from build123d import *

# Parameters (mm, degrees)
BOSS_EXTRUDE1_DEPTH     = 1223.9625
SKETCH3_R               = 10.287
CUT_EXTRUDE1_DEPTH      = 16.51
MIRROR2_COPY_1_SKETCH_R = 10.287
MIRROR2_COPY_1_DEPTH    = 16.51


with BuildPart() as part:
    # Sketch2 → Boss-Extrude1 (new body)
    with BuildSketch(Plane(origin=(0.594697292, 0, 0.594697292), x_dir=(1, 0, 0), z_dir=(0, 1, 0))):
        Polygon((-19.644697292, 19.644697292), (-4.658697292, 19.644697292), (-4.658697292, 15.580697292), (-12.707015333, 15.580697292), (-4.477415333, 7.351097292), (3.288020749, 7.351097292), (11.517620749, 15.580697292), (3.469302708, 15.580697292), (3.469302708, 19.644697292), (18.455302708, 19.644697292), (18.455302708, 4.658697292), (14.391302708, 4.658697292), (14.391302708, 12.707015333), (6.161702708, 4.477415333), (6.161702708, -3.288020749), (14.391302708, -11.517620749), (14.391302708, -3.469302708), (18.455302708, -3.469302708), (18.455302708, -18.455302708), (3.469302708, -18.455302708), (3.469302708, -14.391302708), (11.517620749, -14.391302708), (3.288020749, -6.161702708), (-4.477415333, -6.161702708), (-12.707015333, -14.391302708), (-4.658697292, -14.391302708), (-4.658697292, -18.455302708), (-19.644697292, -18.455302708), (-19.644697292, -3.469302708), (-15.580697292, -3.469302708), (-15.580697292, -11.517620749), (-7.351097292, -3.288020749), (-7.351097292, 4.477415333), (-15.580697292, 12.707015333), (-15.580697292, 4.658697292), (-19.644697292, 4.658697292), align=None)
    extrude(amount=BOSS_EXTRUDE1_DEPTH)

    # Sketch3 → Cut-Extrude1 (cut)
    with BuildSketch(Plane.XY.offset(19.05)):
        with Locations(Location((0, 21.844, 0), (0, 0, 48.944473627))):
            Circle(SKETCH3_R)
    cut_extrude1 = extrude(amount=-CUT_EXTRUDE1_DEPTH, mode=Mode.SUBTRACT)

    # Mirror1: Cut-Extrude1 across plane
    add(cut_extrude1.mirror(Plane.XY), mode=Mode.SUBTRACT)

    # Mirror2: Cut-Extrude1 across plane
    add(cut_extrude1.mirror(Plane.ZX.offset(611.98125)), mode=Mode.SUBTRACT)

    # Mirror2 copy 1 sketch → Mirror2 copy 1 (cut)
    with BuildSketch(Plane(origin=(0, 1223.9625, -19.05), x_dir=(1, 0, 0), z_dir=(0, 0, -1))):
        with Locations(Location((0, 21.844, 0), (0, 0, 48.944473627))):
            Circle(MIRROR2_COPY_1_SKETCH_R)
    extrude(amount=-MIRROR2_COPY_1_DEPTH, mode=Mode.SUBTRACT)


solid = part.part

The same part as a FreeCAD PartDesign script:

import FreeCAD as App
import Part
import Sketcher
from FreeCAD import Vector
Q = App.Units.Quantity


def add_polygon(sketch, points):
    """Adds a closed chain of lines whose ends are joined by coincident constraints."""
    first, n = sketch.GeometryCount, len(points)
    for a, b in zip(points, points[1:] + points[:1]):
        sketch.addGeometry(Part.LineSegment(App.Vector(*a, 0), App.Vector(*b, 0)), False)
    for i in range(n):
        sketch.addConstraint(Sketcher.Constraint("Coincident", first + i, 2, first + (i + 1) % n, 1))

doc = App.newDocument("Part")
body = doc.addObject("PartDesign::Body", "Body")

# Sketch on XZ plane
sketch1 = body.newObject("Sketcher::SketchObject", "Sketch")
sketch1.AttachmentSupport = (doc.getObject("XZ_Plane"), [""])
sketch1.MapMode = "FlatFace"
add_polygon(sketch1, [(-4.1, -19.1), (-19.1, -19.1), (-19.1, -4.1), (-15, -4.1), (-15, -12.1), (-6.8, -3.9), (-6.8, 3.9), (-15, 12.1), (-15, 4.1), (-19.1, 4.1), (-19.1, 19.1), (-4.1, 19.1), (-4.1, 15), (-12.1, 15), (-3.9, 6.8), (3.9, 6.8), (12.1, 15), (4.1, 15), (4.1, 19.1), (19.1, 19.1), (19.1, 4.1), (15, 4.1), (15, 12.1), (6.8, 3.9), (6.8, -3.9), (15, -12.1), (15, -4.1), (19.1, -4.1), (19.1, -19.1), (4.1, -19.1), (4.1, -15), (12.1, -15), (3.9, -6.8), (-3.9, -6.8), (-12.1, -15), (-4.1, -15)])  # lines 0-35
sketch1.addConstraint([
    Sketcher.Constraint("Horizontal", 0),
    Sketcher.Constraint("Vertical", 1),
    Sketcher.Constraint("Horizontal", 2),
    Sketcher.Constraint("Vertical", 3),
    Sketcher.Constraint("Vertical", 5),
    Sketcher.Constraint("Vertical", 7),
    Sketcher.Constraint("Horizontal", 8),
    Sketcher.Constraint("Vertical", 9),
    Sketcher.Constraint("Horizontal", 10),
    Sketcher.Constraint("Vertical", 11),
    Sketcher.Constraint("Horizontal", 12),
    Sketcher.Constraint("Horizontal", 14),
    Sketcher.Constraint("Horizontal", 16),
    Sketcher.Constraint("Vertical", 17),
    Sketcher.Constraint("Horizontal", 18),
    Sketcher.Constraint("Vertical", 19),
    Sketcher.Constraint("Horizontal", 20),
    Sketcher.Constraint("Vertical", 21),
    Sketcher.Constraint("Vertical", 23),
    Sketcher.Constraint("Vertical", 25),
    Sketcher.Constraint("Horizontal", 26),
    Sketcher.Constraint("Vertical", 27),
    Sketcher.Constraint("Horizontal", 28),
    Sketcher.Constraint("Vertical", 29),
    Sketcher.Constraint("Horizontal", 30),
    Sketcher.Constraint("Horizontal", 32),
    Sketcher.Constraint("Horizontal", 34),
    Sketcher.Constraint("Vertical", 35),
    Sketcher.Constraint("Symmetric", 0, 2, 18, 2, -1, 1),
    Sketcher.Constraint("Symmetric", 2, 2, 20, 2, -1, 1),
    Sketcher.Constraint("Symmetric", 4, 2, 22, 2, -1, 1),
    Sketcher.Constraint("Symmetric", 6, 2, 24, 2, -1, 1),
    Sketcher.Constraint("Symmetric", 8, 2, 26, 2, -1, 1),
    Sketcher.Constraint("Symmetric", 10, 2, 28, 2, -1, 1),
    Sketcher.Constraint("Symmetric", 12, 2, 30, 2, -1, 1),
    Sketcher.Constraint("Symmetric", 13, 2, 31, 2, -1, 1),
    Sketcher.Constraint("Symmetric", 15, 2, 33, 2, -1, 1),
    Sketcher.Constraint("Symmetric", 12, 2, 15, 2, -2),
    Sketcher.Constraint("Symmetric", 10, 2, 17, 2, -2),
    Sketcher.Constraint("Symmetric", 8, 2, 19, 2, -2),
    Sketcher.Constraint("Symmetric", 6, 2, 21, 2, -2),
    Sketcher.Constraint("Perpendicular", 4, 6),
    Sketcher.Constraint("Parallel", 6, 13),
    Sketcher.Constraint("Perpendicular", 13, 15),
    Sketcher.Constraint("Parallel", 15, 22),
    Sketcher.Constraint("Perpendicular", 22, 24),
    Sketcher.Constraint("Perpendicular", 31, 33),
    Sketcher.Constraint("Horizontal", 5, 2, 22, 2),
    Sketcher.Constraint("Vertical", 11, 2, 34, 2),
    Sketcher.Constraint("Equal", 28, 1),
    Sketcher.Constraint("Equal", 34, 3),
    Sketcher.Constraint("Equal", 32, 5),
    Sketcher.Constraint("Equal", 26, 11),
    Sketcher.Constraint("Equal", 6, 13),
    Sketcher.Constraint("DistanceX", 0, 2, 0, 1, Q("0.59 in")),
    Sketcher.Constraint("DistanceX", 2, 1, 2, 2, Q("0.16 in")),
    Sketcher.Constraint("DistanceX", 0, 2, -1, 1, Q("0.75 in")),
    Sketcher.Constraint("DistanceX", 4, 2, -1, 1, Q("0.266 in")),
    Sketcher.Constraint("DistanceX", 12, 2, 12, 1, 8.048318),
])
pad1 = body.newObject("PartDesign::Pad", "Pad")
pad1.Profile = sketch1
pad1.Length = Q("48.1875 in")
pad1.Reversed = True

# Sketch on XY plane
sketch2 = body.newObject("Sketcher::SketchObject", "Sketch001")
sketch2.AttachmentSupport = (doc.getObject("XY_Plane"), [""])
sketch2.MapMode = "FlatFace"
sketch2.AttachmentOffset = App.Placement(Vector(0, 0, 0.75 * 25.4), App.Rotation())
sketch2.addGeometry(Part.Circle(Vector(0, 22, 0), Vector(0, 0, 1), 10), False)
sketch2.addConstraint([
    Sketcher.Constraint("PointOnObject", 0, 3, -2),
    Sketcher.Constraint("Diameter", 0, Q("0.81 in")),
    Sketcher.Constraint("DistanceY", -1, 1, 0, 3, Q("0.86 in")),
])
pocket1 = body.newObject("PartDesign::Pocket", "Pocket")
pocket1.Profile = sketch2
pocket1.Length = Q("0.65 in")
doc.recompute()

mirrored = body.newObject("PartDesign::Mirrored", "Mirrored")
mirrored.Originals = [pocket1]
mirrored.MirrorPlane = (doc.getObject("XY_Plane"), [""])
body.Tip = mirrored
doc.recompute()

datumplane = body.newObject("PartDesign::Plane", "DatumPlane")
datumplane.AttachmentSupport = (doc.getObject("XZ_Plane"), [""])
datumplane.MapMode = "FlatFace"
datumplane.AttachmentOffset = App.Placement(Vector(0, 0, -24.09375 * 25.4), App.Rotation())
mirrored2 = body.newObject("PartDesign::Mirrored", "Mirrored001")
mirrored2.Originals = [pocket1]
mirrored2.MirrorPlane = (datumplane, [""])
body.Tip = mirrored2

# Sketch on XY plane
sketch3 = body.newObject("Sketcher::SketchObject", "Sketch002")
sketch3.AttachmentSupport = (doc.getObject("XY_Plane"), [""])
sketch3.MapMode = "FlatFace"
sketch3.AttachmentOffset = App.Placement(Vector(0, 0, -0.75 * 25.4), App.Rotation())
sketch3.addGeometry(Part.Circle(Vector(0, 1202, 0), Vector(0, 0, 1), 10), False)
sketch3.addConstraint([
    Sketcher.Constraint("PointOnObject", 0, 3, -2),
    Sketcher.Constraint("Diameter", 0, Q("0.81 in")),
    Sketcher.Constraint("DistanceY", -1, 1, 0, 3, Q("47.3275 in")),
])
pocket2 = body.newObject("PartDesign::Pocket", "Pocket001")
pocket2.Profile = sketch3
pocket2.Length = Q("0.65 in")
pocket2.Reversed = True

doc.recompute()
